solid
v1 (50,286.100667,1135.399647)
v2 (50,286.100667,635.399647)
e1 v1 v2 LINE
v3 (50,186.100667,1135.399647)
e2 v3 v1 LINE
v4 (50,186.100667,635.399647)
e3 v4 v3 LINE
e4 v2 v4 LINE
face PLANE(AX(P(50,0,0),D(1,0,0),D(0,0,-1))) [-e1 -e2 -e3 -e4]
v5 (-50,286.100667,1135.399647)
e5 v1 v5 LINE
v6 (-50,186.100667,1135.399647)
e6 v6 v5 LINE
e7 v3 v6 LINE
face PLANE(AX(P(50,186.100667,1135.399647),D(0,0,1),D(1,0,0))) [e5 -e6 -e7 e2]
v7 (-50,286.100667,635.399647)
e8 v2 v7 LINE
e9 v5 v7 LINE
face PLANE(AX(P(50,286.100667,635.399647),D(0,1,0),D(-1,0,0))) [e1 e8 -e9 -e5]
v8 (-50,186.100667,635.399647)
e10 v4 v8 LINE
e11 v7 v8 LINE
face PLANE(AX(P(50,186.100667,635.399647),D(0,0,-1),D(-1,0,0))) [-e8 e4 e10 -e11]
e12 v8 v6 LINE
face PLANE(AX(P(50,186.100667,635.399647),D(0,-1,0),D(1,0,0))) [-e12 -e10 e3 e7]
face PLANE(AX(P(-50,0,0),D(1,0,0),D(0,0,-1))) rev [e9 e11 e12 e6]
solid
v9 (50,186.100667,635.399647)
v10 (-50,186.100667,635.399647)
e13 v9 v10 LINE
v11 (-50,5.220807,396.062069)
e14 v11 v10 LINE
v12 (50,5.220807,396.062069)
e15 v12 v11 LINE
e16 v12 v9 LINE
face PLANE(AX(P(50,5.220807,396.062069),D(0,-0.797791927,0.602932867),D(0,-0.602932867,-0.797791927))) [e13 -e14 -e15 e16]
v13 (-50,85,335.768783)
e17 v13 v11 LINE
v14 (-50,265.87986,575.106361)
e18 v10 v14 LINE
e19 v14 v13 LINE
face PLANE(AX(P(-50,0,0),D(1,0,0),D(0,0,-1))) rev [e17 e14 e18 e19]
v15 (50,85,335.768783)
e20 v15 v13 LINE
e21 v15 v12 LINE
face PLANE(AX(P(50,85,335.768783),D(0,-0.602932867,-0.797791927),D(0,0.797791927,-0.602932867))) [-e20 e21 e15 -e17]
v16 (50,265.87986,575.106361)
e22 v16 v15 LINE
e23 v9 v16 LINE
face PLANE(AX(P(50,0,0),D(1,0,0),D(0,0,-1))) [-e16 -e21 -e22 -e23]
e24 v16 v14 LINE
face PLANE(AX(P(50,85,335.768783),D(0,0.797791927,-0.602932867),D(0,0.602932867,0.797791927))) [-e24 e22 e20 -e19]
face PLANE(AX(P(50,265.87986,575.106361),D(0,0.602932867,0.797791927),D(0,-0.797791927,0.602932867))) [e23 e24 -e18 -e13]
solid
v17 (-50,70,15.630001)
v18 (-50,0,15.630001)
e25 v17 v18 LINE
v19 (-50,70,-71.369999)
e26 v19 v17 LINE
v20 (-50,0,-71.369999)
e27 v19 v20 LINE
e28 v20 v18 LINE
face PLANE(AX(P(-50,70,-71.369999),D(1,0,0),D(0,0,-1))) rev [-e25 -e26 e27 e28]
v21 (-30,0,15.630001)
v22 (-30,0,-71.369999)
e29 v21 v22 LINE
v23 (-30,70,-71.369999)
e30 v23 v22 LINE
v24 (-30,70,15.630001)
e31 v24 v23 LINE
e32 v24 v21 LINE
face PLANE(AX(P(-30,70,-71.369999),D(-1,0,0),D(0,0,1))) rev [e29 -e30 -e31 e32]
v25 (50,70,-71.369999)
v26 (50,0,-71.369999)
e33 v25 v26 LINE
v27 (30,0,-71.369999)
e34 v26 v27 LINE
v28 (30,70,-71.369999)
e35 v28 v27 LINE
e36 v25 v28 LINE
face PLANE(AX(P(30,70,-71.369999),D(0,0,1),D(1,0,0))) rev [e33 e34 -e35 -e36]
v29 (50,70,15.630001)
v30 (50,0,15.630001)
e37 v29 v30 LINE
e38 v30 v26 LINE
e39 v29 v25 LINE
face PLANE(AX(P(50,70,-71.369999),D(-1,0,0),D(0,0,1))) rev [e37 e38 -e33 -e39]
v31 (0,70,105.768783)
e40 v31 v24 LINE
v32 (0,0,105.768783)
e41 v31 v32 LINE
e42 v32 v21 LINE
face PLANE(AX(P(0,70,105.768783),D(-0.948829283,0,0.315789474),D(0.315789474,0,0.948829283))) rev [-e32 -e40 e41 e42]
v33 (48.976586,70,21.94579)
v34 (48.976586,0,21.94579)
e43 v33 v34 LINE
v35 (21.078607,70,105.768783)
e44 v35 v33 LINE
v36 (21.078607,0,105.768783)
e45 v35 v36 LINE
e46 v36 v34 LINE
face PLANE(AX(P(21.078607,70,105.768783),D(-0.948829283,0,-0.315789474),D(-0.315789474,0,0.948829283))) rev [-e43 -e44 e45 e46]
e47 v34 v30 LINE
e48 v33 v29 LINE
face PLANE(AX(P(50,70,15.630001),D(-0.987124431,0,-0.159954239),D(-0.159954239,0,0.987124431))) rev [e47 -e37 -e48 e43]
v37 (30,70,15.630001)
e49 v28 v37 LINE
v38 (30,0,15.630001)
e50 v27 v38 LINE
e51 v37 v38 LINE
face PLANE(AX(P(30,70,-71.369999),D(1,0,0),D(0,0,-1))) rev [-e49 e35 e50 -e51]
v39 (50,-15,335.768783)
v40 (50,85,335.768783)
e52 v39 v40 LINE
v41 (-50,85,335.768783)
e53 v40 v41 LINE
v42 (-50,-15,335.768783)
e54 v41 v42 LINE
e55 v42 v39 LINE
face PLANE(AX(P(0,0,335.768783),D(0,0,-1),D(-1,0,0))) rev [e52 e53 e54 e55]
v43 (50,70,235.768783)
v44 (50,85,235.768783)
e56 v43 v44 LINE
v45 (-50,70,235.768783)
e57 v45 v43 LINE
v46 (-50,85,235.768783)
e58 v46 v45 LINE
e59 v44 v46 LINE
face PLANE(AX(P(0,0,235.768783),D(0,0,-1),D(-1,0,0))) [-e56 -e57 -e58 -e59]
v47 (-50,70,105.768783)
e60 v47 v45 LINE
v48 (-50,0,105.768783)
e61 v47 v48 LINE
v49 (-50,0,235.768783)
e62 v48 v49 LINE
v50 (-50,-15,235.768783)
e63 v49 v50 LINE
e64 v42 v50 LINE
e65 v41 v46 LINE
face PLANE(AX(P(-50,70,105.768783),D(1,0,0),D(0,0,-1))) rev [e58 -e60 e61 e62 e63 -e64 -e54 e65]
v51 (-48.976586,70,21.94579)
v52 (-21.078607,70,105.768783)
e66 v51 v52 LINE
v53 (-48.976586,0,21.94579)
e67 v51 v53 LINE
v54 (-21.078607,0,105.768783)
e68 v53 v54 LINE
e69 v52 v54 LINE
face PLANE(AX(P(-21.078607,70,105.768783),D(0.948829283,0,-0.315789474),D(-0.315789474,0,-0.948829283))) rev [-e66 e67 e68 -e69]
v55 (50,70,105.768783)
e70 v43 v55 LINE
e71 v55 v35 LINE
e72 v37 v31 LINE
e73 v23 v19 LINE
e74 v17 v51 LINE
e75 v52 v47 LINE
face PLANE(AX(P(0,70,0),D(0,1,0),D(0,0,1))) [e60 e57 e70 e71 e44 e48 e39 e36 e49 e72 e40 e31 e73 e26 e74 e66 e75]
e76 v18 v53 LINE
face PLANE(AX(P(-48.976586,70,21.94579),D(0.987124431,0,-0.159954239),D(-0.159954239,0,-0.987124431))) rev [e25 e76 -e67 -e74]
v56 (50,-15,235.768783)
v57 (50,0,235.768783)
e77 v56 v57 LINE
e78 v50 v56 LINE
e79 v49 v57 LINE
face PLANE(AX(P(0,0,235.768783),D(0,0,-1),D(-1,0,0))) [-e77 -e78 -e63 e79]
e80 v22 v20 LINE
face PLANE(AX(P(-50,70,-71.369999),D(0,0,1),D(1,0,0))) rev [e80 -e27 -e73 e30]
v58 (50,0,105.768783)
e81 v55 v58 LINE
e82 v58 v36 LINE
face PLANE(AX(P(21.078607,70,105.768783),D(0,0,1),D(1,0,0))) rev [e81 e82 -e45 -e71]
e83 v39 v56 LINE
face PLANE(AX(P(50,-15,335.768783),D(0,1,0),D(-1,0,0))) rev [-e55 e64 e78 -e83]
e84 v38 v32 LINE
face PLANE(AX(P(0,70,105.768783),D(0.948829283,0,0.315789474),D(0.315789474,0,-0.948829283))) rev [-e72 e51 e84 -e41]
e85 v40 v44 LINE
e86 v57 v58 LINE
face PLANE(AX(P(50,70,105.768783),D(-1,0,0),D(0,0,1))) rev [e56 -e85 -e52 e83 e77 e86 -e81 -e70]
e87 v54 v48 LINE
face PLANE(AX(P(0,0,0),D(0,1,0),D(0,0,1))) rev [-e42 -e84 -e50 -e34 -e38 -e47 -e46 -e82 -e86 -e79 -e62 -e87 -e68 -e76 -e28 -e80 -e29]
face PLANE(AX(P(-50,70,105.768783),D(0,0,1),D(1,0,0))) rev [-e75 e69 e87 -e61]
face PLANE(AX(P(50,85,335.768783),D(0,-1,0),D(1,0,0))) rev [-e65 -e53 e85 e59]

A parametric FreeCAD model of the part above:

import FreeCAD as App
import Part
import Sketcher
Q = App.Units.Quantity


def add_polygon(sketch, points):
    """Adds a closed chain of lines whose ends are joined by coincident constraints."""
    first, n = sketch.GeometryCount, len(points)
    for a, b in zip(points, points[1:] + points[:1]):
        sketch.addGeometry(Part.LineSegment(App.Vector(*a, 0), App.Vector(*b, 0)), False)
    for i in range(n):
        sketch.addConstraint(Sketcher.Constraint("Coincident", first + i, 2, first + (i + 1) % n, 1))

doc = App.newDocument("Part")
params = doc.addObject("Spreadsheet::Sheet", "Params")
for row, (alias, value) in enumerate([
    ("sketch1_width", "20 mm"),
    ("sketch1_width2", "100 mm"),
    ("sketch1_height", "87 mm"),
    ("sketch1_height2", "130 mm"),
    ("sketch1_length", "95 mm"),
    ("pad1_length", "70 mm"),
    ("sketch2_width", "100 mm"),
    ("pad2_length", "100 mm"),
    ("sketch3_length", "100 mm"),
    ("sketch3_length2", "300 mm"),
    ("pad3_length", "100 mm"),
    ("sketch4_width", "100 mm"),
    ("sketch4_height", "500 mm"),
    ("pad4_length", "100 mm"),
], start=1):
    params.set(f"A{row}", alias)
    params.set(f"B{row}", "=" + value)
    params.setAlias(f"B{row}", alias)

body = doc.addObject("PartDesign::Body", "Body")

# Sketch on XZ plane
sketch1 = body.newObject("Sketcher::SketchObject", "Sketch")
sketch1.AttachmentSupport = (doc.getObject("XZ_Plane"), [""])
sketch1.MapMode = "FlatFace"
add_polygon(sketch1, [(0, 106), (-30, 16), (-30, -71), (-50, -71), (-50, 16), (-49, 22), (-21, 106), (-50, 106), (-50, 236), (50, 236), (50, 106), (21, 106), (49, 22), (50, 16), (50, -71), (30, -71), (30, 16)])  # lines 0-16
sketch1.addConstraint(Sketcher.Constraint("Vertical", 1))
sketch1.addConstraint(Sketcher.Constraint("Horizontal", 2))
sketch1.addConstraint(Sketcher.Constraint("Vertical", 3))
sketch1.addConstraint(Sketcher.Constraint("Horizontal", 6))
sketch1.addConstraint(Sketcher.Constraint("Vertical", 7))
sketch1.addConstraint(Sketcher.Constraint("Horizontal", 8))
sketch1.addConstraint(Sketcher.Constraint("Vertical", 9))
sketch1.addConstraint(Sketcher.Constraint("Horizontal", 10))
sketch1.addConstraint(Sketcher.Constraint("Vertical", 13))
sketch1.addConstraint(Sketcher.Constraint("Horizontal", 14))
sketch1.addConstraint(Sketcher.Constraint("Vertical", 15))
sketch1.addConstraint(Sketcher.Constraint("Symmetric", 6, 2, 9, 2, -2))
sketch1.addConstraint(Sketcher.Constraint("Symmetric", 4, 2, 11, 2, -2))
sketch1.addConstraint(Sketcher.Constraint("Symmetric", 3, 2, 12, 2, -2))
sketch1.addConstraint(Sketcher.Constraint("Symmetric", 1, 2, 14, 2, -2))
sketch1.addConstraint(Sketcher.Constraint("PointOnObject", 16, 2, -2))
sketch1.addConstraint(Sketcher.Constraint("Parallel", 0, 5))
sketch1.addConstraint(Sketcher.Constraint("Parallel", 11, 16))
sketch1.addConstraint(Sketcher.Constraint("Horizontal", 0, 2, 3, 2))
sketch1.addConstraint(Sketcher.Constraint("Horizontal", 12, 2, 15, 2))
sketch1.addConstraint(Sketcher.Constraint("Horizontal", 10, 2, 16, 2))
sketch1.addConstraint(Sketcher.Constraint("Vertical", 3, 2, 6, 2))
sketch1.addConstraint(Sketcher.Constraint("DistanceX", 2, 2, 2, 1, Q("20 mm")))
sketch1.addConstraint(Sketcher.Constraint("DistanceX", 8, 1, 8, 2, Q("100 mm")))
sketch1.addConstraint(Sketcher.Constraint("DistanceY", 1, 2, 1, 1, Q("87 mm")))
sketch1.addConstraint(Sketcher.Constraint("DistanceY", 7, 1, 7, 2, Q("130 mm")))
sketch1.addConstraint(Sketcher.Constraint("Distance", 0, Q("95 mm")))
sketch1.addConstraint(Sketcher.Constraint("DistanceY", -1, 1, 0, 2, Q("15.630001 mm")))
sketch1.addConstraint(Sketcher.Constraint("Distance", 4, Q("6.39817 mm")))
sketch1.addConstraint(Sketcher.Constraint("DistanceX", 6, 2, 6, 1, Q("28.921393 mm")))
sketch1.setExpression("Constraints[39]", "Params.sketch1_width")
sketch1.setExpression("Constraints[40]", "Params.sketch1_width2")
sketch1.setExpression("Constraints[41]", "Params.sketch1_height")
sketch1.setExpression("Constraints[42]", "Params.sketch1_height2")
sketch1.setExpression("Constraints[43]", "Params.sketch1_length")
pad1 = body.newObject("PartDesign::Pad", "Pad")
pad1.Profile = sketch1
pad1.setExpression("Length", "Params.pad1_length")
pad1.Reversed = True

# Sketch on XY plane
sketch2 = body.newObject("Sketcher::SketchObject", "Sketch001")
sketch2.AttachmentSupport = (doc.getObject("XY_Plane"), [""])
sketch2.MapMode = "FlatFace"
sketch2.AttachmentOffset = App.Placement(App.Vector(0, 0, 235.768783), App.Rotation())
add_polygon(sketch2, [(-50, 85), (-50, -15), (50, -15), (50, 85)])  # lines 0-3
sketch2.addConstraint(Sketcher.Constraint("Vertical", 0))
sketch2.addConstraint(Sketcher.Constraint("Horizontal", 1))
sketch2.addConstraint(Sketcher.Constraint("Vertical", 2))
sketch2.addConstraint(Sketcher.Constraint("Horizontal", 3))
sketch2.addConstraint(Sketcher.Constraint("Equal", 3, 0))
sketch2.addConstraint(Sketcher.Constraint("DistanceX", 1, 1, 1, 2, Q("100 mm")))
sketch2.addConstraint(Sketcher.Constraint("DistanceX", 0, 2, -1, 1, Q("50 mm")))
sketch2.addConstraint(Sketcher.Constraint("DistanceY", 0, 2, -1, 1, Q("15 mm")))
sketch2.setExpression("Constraints[9]", "Params.sketch2_width")
pad2 = body.newObject("PartDesign::Pad", "Pad001")
pad2.Profile = sketch2
pad2.setExpression("Length", "Params.pad2_length")
body2 = doc.addObject("PartDesign::Body", "Body001")

# Sketch on YZ plane
sketch3 = body2.newObject("Sketcher::SketchObject", "Sketch002")
sketch3.AttachmentSupport = (doc.getObject("YZ_Plane001"), [""])
sketch3.MapMode = "FlatFace"
sketch3.AttachmentOffset = App.Placement(App.Vector(0, 0, -50), App.Rotation())
add_polygon(sketch3, [(85, 336), (5, 396), (186, 635), (266, 575)])  # lines 0-3
sketch3.addConstraint(Sketcher.Constraint("Perpendicular", 0, 1))
sketch3.addConstraint(Sketcher.Constraint("Perpendicular", 1, 2))
sketch3.addConstraint(Sketcher.Constraint("Perpendicular", 2, 3))
sketch3.addConstraint(Sketcher.Constraint("Distance", 0, Q("100 mm")))
sketch3.addConstraint(Sketcher.Constraint("Distance", 1, Q("300 mm")))
sketch3.addConstraint(Sketcher.Constraint("DistanceX", -1, 1, 3, 2, Q("85 mm")))
sketch3.addConstraint(Sketcher.Constraint("DistanceY", -1, 1, 0, 2, Q("396.062069 mm")))
sketch3.addConstraint(Sketcher.Constraint("DistanceX", -1, 1, 2, 2, Q("265.87986 mm")))
sketch3.setExpression("Constraints[7]", "Params.sketch3_length")
sketch3.setExpression("Constraints[8]", "Params.sketch3_length2")
pad3 = body2.newObject("PartDesign::Pad", "Pad002")
pad3.Profile = sketch3
pad3.setExpression("Length", "Params.pad3_length")
body3 = doc.addObject("PartDesign::Body", "Body002")

# Sketch on YZ plane
sketch4 = body3.newObject("Sketcher::SketchObject", "Sketch003")
sketch4.AttachmentSupport = (doc.getObject("YZ_Plane002"), [""])
sketch4.MapMode = "FlatFace"
sketch4.AttachmentOffset = App.Placement(App.Vector(0, 0, -50), App.Rotation())
add_polygon(sketch4, [(286, 635), (186, 635), (186, 1135), (286, 1135)])  # lines 0-3
sketch4.addConstraint(Sketcher.Constraint("Horizontal", 0))
sketch4.addConstraint(Sketcher.Constraint("Vertical", 1))
sketch4.addConstraint(Sketcher.Constraint("Horizontal", 2))
sketch4.addConstraint(Sketcher.Constraint("Vertical", 3))
sketch4.addConstraint(Sketcher.Constraint("DistanceX", 0, 2, 0, 1, Q("100 mm")))
sketch4.addConstraint(Sketcher.Constraint("DistanceY", 1, 1, 1, 2, Q("500 mm")))
sketch4.addConstraint(Sketcher.Constraint("DistanceX", -1, 1, 0, 2, Q("186.100667 mm")))
sketch4.addConstraint(Sketcher.Constraint("DistanceY", -1, 1, 0, 2, Q("635.399647 mm")))
sketch4.setExpression("Constraints[8]", "Params.sketch4_width")
sketch4.setExpression("Constraints[9]", "Params.sketch4_height")
pad4 = body3.newObject("PartDesign::Pad", "Pad003")
pad4.Profile = sketch4
pad4.setExpression("Length", "Params.pad4_length")

doc.recompute()
